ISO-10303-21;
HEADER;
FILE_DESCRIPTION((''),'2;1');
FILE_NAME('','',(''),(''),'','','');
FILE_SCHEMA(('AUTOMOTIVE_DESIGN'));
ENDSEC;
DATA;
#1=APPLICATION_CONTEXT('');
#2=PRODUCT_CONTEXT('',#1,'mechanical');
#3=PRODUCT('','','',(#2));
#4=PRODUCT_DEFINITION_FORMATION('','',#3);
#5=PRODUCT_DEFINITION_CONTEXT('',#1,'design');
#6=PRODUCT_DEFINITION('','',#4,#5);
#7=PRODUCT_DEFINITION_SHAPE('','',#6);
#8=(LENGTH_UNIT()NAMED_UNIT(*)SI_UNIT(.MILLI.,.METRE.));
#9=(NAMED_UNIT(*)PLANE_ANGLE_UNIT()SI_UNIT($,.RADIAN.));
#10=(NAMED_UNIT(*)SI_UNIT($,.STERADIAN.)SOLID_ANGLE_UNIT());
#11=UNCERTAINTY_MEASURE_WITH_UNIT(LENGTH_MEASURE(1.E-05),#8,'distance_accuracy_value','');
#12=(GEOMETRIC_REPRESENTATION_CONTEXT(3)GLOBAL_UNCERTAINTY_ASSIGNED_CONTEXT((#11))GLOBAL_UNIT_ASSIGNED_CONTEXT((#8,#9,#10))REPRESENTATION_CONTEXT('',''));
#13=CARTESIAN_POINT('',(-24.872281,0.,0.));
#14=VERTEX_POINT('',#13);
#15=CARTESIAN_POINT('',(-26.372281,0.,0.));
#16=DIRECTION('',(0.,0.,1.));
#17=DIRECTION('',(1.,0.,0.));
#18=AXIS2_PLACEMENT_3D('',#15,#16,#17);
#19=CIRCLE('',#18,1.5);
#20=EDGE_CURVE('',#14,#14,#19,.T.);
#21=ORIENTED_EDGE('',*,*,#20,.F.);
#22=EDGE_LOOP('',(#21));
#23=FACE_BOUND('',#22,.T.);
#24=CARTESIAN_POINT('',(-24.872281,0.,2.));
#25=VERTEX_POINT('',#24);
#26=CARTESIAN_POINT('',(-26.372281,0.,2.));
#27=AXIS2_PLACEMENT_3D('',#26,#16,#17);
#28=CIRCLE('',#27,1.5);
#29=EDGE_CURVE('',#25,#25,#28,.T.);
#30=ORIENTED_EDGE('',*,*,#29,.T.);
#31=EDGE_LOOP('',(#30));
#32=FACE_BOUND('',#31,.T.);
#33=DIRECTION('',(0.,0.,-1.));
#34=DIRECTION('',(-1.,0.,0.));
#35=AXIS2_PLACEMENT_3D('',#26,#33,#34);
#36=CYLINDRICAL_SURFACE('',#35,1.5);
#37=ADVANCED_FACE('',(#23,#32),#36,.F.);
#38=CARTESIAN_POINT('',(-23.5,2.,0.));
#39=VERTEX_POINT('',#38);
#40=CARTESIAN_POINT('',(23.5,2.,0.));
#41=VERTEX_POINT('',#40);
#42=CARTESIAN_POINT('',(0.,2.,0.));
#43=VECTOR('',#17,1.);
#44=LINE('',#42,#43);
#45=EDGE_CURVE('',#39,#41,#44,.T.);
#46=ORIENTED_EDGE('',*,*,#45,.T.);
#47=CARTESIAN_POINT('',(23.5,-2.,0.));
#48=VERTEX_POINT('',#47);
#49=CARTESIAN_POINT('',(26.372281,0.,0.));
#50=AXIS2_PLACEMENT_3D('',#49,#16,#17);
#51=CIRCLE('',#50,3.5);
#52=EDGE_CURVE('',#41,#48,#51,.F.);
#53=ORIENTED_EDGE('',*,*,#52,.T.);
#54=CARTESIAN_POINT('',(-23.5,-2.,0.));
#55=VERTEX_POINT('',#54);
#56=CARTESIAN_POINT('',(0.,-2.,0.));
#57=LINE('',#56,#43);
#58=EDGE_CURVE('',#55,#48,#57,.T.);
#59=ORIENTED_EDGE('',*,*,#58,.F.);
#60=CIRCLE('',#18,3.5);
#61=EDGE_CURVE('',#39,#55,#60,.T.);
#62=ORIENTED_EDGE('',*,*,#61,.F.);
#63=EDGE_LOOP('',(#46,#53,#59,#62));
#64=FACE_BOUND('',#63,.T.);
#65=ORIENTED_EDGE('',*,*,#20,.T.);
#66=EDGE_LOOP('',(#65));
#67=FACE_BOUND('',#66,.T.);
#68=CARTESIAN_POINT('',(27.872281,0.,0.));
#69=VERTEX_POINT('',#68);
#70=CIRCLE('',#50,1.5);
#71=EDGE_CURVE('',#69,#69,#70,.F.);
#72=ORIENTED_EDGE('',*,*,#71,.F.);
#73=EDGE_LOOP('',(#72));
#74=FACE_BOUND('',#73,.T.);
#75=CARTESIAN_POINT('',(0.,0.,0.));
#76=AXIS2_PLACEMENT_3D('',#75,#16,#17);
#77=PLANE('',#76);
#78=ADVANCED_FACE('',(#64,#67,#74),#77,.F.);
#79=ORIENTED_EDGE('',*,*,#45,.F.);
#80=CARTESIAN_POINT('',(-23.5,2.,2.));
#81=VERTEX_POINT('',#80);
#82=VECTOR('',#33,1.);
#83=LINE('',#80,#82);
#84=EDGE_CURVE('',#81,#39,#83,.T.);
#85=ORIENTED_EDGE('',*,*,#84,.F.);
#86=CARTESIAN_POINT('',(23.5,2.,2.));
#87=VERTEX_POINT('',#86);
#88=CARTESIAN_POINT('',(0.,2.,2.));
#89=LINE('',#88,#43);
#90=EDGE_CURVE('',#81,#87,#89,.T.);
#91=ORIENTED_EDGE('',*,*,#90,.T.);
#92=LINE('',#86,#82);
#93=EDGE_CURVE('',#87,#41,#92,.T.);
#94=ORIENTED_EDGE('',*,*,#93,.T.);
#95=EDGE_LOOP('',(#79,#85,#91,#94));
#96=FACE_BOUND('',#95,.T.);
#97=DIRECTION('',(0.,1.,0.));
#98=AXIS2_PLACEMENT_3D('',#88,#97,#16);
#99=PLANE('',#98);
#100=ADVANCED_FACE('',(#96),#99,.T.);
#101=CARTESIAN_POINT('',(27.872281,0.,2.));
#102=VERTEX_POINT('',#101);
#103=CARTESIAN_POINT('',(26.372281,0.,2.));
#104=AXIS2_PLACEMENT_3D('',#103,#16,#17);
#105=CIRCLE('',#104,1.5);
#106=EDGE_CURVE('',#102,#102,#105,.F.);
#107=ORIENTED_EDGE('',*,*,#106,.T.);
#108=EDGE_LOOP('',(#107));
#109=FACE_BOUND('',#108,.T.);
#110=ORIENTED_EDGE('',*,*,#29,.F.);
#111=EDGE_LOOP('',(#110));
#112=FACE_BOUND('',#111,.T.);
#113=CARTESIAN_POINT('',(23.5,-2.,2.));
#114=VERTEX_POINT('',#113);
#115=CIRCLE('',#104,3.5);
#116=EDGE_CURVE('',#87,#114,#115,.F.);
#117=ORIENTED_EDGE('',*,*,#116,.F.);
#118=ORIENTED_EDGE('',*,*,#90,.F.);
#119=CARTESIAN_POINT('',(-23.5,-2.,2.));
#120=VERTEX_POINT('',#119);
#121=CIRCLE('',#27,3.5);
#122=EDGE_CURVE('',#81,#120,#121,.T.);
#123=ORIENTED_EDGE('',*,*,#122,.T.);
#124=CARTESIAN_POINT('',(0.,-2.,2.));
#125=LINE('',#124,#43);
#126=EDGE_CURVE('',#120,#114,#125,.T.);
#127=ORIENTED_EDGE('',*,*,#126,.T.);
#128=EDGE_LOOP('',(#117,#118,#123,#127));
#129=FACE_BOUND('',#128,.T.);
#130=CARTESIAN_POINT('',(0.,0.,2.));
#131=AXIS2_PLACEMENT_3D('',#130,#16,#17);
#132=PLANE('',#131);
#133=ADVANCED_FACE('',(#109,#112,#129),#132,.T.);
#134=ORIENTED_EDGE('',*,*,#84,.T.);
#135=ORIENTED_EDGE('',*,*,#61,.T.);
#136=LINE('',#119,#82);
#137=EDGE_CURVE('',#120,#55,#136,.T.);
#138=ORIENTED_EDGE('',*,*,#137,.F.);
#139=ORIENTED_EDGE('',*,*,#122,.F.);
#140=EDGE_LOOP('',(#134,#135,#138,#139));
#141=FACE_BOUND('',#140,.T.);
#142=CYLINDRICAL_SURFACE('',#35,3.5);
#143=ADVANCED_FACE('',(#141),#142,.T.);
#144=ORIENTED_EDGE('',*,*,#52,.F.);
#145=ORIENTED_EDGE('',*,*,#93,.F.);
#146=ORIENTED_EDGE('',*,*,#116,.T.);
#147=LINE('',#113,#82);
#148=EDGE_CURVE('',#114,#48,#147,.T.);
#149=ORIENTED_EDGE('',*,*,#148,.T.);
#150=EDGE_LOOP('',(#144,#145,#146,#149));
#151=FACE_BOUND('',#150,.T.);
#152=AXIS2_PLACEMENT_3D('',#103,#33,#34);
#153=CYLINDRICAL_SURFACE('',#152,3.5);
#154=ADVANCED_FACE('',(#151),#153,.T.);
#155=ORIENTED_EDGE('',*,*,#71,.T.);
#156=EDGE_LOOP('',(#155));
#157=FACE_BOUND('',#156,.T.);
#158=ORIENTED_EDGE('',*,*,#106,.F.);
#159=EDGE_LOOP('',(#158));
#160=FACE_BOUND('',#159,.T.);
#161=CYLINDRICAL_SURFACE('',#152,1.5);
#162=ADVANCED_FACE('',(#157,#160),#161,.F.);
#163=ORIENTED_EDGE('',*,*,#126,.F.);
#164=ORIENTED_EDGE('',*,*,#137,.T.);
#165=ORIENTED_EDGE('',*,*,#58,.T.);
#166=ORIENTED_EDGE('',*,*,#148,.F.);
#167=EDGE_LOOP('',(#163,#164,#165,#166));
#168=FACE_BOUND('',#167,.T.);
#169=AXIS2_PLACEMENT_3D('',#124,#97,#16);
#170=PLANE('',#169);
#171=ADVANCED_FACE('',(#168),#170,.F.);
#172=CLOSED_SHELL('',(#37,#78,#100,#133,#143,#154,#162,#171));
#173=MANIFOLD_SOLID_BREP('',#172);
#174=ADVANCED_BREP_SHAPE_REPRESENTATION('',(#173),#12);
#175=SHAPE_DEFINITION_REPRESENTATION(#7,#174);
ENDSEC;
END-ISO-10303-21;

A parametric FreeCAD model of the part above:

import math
import FreeCAD as App
import Part
import Sketcher
from FreeCAD import Vector

doc = App.newDocument("Part")
body = doc.addObject("PartDesign::Body", "Body")

# Sketch on XY plane
sketch1 = body.newObject("Sketcher::SketchObject", "Sketch")
sketch1.AttachmentSupport = (doc.getObject("XY_Plane"), [""])
sketch1.MapMode = "FlatFace"
sketch1.addGeometry([
    Part.LineSegment(Vector(-23.5, -2, 0), Vector(23.5, -2, 0)),  # 0
    Part.ArcOfCircle(Part.Circle(Vector(26.372281, 0, 0), Vector(0, 0, 1), 3.5), math.radians(-145.150095), math.radians(0)),  # 1
    Part.ArcOfCircle(Part.Circle(Vector(26.372281, 0, 0), Vector(0, 0, 1), 3.5), math.radians(0), math.radians(145.150095)),  # 2
    Part.LineSegment(Vector(23.5, 2, 0), Vector(-23.5, 2, 0)),  # 3
    Part.ArcOfCircle(Part.Circle(Vector(-26.372281, 0, 0), Vector(0, 0, 1), 3.5), math.radians(34.849905), math.radians(325.150095)),  # 4
    Part.Circle(Vector(-26.372281, 0, 0), Vector(0, 0, 1), 1.5),  # 5
    Part.Circle(Vector(26.372281, 0, 0), Vector(0, 0, 1), 1.5),  # 6
], False)
sketch1.addConstraint([
    Sketcher.Constraint("Coincident", 0, 2, 1, 1),
    Sketcher.Constraint("Tangent", 1, 2, 2, 1),
    Sketcher.Constraint("Coincident", 2, 2, 3, 1),
    Sketcher.Constraint("Coincident", 3, 2, 4, 1),
    Sketcher.Constraint("Coincident", 4, 2, 0, 1),
    Sketcher.Constraint("Horizontal", 0),
    Sketcher.Constraint("Horizontal", 3),
    Sketcher.Constraint("Coincident", 5, 3, 4, 3),
    Sketcher.Constraint("Coincident", 6, 3, 1, 3),
    Sketcher.Constraint("Equal", 1, 2),
    Sketcher.Constraint("Equal", 2, 4),
    Sketcher.Constraint("Equal", 5, 6),
    Sketcher.Constraint("Symmetric", 1, 3, 4, 3, -1, 1),
    Sketcher.Constraint("Symmetric", 0, 2, 2, 2, -1),
    Sketcher.Constraint("PointOnObject", 1, 2, -1),
    Sketcher.Constraint("Diameter", 5, 3.0),
    Sketcher.Constraint("Radius", 1, 3.5),
    Sketcher.Constraint("DistanceX", 0, 1, 0, 2, 47.0),
    Sketcher.Constraint("DistanceY", 0, 2, -1, 1, 2.0),
])
pad1 = body.newObject("PartDesign::Pad", "Pad")
pad1.Profile = sketch1
pad1.Length = 2

doc.recompute()
